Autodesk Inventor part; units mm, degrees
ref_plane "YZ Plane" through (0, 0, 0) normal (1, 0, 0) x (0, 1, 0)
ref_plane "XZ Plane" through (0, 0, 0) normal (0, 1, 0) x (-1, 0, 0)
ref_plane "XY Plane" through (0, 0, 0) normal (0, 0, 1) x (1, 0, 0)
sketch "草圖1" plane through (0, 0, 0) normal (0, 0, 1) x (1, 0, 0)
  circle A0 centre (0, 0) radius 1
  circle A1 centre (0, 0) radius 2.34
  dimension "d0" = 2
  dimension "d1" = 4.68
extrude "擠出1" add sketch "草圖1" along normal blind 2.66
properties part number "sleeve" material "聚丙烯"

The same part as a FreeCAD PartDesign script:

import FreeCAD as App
import Part
import Sketcher
from FreeCAD import Vector

doc = App.newDocument("Part")
body = doc.addObject("PartDesign::Body", "Body")

sketch1 = body.newObject("Sketcher::SketchObject", "Sketch")
sketch1.AttachmentSupport = (doc.getObject("XY_Plane"), [""])
sketch1.MapMode = "FlatFace"
sketch1.addGeometry([
    Part.Circle(Vector(0, 0, 0), Vector(0, 0, 1), 2.3),
    Part.Circle(Vector(0, 0, 0), Vector(0, 0, 1), 1),
], False)
sketch1.addConstraint([
    Sketcher.Constraint("Coincident", 0, 3, -1, 1),
    Sketcher.Constraint("Coincident", 1, 3, -1, 1),
    Sketcher.Constraint("Diameter", 1, 2.0),
    Sketcher.Constraint("Diameter", 0, 4.68),
])
pad1 = body.newObject("PartDesign::Pad", "Pad")
pad1.Profile = sketch1
pad1.Length = 2.66

doc.recompute()
